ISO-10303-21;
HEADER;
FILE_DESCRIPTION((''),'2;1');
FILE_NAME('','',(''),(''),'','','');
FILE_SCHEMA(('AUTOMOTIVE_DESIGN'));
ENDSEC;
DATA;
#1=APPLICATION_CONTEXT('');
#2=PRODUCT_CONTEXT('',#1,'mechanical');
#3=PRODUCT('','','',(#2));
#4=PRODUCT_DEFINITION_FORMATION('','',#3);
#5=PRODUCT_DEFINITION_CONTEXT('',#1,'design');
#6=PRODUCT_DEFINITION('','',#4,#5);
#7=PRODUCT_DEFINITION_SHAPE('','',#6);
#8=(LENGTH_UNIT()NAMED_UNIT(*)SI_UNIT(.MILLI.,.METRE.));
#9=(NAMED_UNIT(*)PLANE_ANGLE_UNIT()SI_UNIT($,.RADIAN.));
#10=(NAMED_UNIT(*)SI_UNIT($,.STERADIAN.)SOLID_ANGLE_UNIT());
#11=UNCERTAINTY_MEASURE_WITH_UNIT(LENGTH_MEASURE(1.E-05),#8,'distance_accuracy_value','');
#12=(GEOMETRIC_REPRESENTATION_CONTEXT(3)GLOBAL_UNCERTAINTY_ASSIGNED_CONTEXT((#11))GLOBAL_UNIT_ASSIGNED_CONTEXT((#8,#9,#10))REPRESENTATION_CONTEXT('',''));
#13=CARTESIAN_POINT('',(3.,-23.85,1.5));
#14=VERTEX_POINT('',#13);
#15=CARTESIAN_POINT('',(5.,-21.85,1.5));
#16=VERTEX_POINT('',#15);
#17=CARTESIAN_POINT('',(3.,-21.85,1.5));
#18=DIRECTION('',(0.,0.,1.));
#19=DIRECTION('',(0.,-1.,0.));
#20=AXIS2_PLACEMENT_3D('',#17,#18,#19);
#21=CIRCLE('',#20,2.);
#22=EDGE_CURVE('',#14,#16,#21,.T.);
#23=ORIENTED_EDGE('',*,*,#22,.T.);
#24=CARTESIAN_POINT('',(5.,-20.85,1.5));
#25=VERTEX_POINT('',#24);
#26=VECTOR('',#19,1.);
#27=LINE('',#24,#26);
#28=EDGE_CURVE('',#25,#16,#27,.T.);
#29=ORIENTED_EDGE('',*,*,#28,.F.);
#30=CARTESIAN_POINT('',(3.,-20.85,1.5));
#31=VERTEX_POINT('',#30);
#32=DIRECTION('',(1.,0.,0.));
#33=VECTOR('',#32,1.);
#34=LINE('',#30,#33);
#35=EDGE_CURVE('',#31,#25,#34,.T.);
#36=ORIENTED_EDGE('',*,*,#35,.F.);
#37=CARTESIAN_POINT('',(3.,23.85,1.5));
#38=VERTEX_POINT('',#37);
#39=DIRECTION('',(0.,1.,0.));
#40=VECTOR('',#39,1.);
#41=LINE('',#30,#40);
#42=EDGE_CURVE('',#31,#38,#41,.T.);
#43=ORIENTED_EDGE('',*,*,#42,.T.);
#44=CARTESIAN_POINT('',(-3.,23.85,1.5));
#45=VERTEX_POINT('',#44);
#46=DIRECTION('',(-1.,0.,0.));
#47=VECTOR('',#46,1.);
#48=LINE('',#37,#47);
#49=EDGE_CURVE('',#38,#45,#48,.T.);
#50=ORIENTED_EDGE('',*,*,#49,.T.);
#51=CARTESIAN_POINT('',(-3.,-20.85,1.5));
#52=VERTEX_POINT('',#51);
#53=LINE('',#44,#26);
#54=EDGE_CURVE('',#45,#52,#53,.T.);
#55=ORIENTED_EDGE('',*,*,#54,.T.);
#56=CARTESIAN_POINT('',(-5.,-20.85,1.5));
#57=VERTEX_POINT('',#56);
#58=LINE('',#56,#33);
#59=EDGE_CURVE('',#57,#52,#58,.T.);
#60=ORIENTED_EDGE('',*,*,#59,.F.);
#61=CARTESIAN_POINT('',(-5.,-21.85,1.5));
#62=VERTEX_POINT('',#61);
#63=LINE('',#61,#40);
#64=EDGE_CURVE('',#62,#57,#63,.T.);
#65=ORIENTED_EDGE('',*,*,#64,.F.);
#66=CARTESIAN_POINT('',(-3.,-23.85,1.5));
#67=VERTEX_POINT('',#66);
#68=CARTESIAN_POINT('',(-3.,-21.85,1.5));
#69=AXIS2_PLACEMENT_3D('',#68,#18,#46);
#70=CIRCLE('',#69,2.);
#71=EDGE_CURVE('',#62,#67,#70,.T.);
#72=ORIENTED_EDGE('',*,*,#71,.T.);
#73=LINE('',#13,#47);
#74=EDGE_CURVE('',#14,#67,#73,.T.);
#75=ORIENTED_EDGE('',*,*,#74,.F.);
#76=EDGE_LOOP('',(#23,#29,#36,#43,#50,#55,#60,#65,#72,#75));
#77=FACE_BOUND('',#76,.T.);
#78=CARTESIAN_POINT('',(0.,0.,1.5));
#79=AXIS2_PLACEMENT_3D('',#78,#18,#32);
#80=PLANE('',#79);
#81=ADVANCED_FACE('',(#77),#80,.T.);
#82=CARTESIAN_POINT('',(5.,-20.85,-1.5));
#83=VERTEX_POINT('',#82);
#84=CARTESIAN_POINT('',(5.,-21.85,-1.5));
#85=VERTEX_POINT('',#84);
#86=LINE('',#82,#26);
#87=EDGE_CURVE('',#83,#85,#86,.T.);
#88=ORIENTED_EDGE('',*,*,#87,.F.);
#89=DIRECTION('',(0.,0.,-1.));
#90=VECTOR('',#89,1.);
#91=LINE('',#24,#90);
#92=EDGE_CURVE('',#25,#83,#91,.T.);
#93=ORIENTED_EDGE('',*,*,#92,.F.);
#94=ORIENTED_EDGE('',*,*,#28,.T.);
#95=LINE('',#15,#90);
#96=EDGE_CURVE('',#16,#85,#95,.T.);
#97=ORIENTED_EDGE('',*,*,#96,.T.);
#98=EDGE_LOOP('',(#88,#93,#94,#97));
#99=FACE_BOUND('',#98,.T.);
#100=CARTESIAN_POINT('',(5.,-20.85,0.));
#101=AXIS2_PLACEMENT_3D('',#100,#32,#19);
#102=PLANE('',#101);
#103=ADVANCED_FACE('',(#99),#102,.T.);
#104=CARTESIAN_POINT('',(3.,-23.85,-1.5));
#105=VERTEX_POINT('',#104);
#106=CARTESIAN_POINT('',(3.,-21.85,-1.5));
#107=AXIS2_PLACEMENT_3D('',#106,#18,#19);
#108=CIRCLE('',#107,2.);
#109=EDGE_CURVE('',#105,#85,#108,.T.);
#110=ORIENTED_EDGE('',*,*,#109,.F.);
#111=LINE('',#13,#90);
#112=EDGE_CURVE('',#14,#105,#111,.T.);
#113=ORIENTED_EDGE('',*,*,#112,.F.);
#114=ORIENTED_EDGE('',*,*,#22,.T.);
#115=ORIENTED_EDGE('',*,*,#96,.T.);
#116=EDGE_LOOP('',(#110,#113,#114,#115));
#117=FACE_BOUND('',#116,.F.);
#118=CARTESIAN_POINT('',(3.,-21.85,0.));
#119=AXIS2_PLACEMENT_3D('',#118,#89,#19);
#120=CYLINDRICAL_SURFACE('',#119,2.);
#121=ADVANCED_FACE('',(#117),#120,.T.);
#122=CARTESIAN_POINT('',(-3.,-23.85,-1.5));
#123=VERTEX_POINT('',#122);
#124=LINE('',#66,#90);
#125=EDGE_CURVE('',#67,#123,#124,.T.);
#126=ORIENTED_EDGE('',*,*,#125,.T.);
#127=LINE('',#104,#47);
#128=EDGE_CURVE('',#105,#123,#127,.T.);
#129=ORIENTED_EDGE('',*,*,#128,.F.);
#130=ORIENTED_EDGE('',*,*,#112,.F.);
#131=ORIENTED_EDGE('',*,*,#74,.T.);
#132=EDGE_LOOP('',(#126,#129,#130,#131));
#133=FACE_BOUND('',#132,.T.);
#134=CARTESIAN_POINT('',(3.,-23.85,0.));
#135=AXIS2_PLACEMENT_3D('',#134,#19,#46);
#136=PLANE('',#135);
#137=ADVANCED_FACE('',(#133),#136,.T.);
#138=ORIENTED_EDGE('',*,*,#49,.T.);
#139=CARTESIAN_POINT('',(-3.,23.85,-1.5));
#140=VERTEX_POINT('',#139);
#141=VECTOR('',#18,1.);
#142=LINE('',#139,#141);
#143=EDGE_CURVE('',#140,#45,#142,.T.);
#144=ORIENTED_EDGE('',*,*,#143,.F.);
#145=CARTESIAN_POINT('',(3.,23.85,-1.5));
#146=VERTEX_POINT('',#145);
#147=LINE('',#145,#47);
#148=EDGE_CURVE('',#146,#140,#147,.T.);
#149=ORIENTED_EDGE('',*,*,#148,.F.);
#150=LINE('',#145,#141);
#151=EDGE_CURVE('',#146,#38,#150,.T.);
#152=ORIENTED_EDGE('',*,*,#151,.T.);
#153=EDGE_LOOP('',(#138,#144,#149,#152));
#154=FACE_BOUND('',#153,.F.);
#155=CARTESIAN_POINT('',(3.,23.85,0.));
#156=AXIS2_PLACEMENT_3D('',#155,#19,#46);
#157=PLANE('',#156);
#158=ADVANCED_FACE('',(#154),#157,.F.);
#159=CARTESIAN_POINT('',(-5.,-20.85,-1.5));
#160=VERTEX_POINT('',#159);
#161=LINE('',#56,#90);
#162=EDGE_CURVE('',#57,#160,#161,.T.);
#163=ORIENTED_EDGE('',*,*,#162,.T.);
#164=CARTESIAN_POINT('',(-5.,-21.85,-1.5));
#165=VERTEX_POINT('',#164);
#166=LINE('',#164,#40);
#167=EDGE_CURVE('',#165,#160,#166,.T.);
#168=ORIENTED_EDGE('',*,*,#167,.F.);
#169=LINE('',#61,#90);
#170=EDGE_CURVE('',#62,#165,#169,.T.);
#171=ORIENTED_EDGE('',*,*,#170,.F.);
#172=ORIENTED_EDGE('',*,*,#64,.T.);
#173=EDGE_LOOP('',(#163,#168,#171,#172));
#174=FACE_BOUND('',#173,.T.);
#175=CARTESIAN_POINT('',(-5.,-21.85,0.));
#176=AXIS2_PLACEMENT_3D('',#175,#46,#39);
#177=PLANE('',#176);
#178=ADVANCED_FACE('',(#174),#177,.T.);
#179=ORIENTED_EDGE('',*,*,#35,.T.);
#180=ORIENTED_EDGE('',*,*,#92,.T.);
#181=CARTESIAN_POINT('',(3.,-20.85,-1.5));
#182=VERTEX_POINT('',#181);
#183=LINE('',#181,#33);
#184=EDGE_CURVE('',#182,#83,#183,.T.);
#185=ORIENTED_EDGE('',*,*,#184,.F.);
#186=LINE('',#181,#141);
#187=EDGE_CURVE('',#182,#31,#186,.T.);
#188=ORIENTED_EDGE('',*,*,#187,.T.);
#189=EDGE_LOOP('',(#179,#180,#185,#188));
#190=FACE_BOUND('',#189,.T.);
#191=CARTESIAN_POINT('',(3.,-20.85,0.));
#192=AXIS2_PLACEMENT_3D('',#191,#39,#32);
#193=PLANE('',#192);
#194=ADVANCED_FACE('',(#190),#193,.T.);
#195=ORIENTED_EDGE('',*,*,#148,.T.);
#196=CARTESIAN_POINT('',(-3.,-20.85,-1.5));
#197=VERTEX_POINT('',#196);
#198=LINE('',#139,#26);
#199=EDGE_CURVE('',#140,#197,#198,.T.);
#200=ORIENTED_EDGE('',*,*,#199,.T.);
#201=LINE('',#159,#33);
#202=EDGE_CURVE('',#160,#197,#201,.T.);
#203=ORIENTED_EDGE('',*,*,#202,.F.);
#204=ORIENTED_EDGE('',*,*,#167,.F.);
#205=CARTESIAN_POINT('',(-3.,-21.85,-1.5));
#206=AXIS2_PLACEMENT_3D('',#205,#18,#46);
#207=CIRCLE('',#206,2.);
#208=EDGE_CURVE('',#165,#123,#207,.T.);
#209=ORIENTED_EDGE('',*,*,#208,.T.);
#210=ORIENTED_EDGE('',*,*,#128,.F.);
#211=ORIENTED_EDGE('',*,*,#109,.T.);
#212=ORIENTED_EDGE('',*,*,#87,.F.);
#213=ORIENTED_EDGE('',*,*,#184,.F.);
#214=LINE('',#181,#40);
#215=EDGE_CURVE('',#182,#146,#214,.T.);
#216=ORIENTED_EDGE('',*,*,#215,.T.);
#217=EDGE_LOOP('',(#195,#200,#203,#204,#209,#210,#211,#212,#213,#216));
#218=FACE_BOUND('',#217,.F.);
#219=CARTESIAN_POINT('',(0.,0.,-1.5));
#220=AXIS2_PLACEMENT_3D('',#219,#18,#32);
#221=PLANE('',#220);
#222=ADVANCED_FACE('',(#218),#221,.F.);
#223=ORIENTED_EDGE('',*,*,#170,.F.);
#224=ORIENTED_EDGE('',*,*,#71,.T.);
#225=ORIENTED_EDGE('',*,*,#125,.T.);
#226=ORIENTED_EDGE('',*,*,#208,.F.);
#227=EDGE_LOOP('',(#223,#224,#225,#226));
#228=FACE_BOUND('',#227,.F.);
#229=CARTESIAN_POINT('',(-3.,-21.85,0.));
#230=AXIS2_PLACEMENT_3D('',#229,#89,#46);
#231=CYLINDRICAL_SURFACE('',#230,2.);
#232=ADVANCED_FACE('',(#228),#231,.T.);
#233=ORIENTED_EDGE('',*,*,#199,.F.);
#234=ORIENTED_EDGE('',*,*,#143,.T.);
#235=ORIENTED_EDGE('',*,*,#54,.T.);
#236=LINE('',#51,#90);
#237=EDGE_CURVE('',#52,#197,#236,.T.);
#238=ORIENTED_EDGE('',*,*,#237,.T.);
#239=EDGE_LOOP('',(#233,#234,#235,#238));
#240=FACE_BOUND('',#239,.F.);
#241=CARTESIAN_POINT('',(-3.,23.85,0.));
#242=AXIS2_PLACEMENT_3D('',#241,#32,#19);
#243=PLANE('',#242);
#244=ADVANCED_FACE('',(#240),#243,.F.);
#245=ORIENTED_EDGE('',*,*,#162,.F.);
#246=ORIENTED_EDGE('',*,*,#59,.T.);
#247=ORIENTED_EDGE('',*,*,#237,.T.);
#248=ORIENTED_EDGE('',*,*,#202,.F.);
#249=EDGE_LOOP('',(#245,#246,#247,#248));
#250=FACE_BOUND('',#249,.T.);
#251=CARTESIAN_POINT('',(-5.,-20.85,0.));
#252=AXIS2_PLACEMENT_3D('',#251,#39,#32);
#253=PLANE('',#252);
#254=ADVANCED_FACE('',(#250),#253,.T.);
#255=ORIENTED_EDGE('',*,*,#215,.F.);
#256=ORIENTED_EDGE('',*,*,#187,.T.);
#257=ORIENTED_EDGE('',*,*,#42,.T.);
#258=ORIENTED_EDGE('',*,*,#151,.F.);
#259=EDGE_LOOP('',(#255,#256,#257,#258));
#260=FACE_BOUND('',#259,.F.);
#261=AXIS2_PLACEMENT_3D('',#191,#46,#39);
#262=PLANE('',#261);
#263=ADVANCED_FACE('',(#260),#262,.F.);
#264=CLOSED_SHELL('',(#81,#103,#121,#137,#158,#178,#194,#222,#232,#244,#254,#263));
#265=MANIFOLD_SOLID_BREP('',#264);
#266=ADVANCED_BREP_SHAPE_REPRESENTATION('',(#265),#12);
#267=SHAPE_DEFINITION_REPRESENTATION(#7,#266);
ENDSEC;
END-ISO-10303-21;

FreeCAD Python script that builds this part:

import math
import FreeCAD as App
import Part
import Sketcher
Q = App.Units.Quantity

doc = App.newDocument("Part")
body = doc.addObject("PartDesign::Body", "Body")

sketch1 = body.newObject("Sketcher::SketchObject", "Sketch")
sketch1.AttachmentSupport = (doc.getObject("XY_Plane"), [""])
sketch1.MapMode = "FlatFace"
sketch1.addGeometry([
    Part.LineSegment(App.Vector(5, -20.9, 0), App.Vector(3, -20.9, 0)),
    Part.LineSegment(App.Vector(3, -20.9, 0), App.Vector(3, 23.9, 0)),
    Part.LineSegment(App.Vector(3, 23.9, 0), App.Vector(-3, 23.9, 0)),
    Part.LineSegment(App.Vector(-3, 23.9, 0), App.Vector(-3, -20.9, 0)),
    Part.LineSegment(App.Vector(-3, -20.9, 0), App.Vector(-5, -20.9, 0)),
    Part.LineSegment(App.Vector(-5, -20.9, 0), App.Vector(-5, -21.9, 0)),
    Part.ArcOfCircle(Part.Circle(App.Vector(-3, -21.9, 0), App.Vector(0, 0, 1), 2), math.radians(180), math.radians(270)),
    Part.LineSegment(App.Vector(-3, -23.9, 0), App.Vector(3, -23.9, 0)),
    Part.ArcOfCircle(Part.Circle(App.Vector(3, -21.9, 0), App.Vector(0, 0, 1), 2), math.radians(-90), math.radians(0)),
    Part.LineSegment(App.Vector(5, -21.9, 0), App.Vector(5, -20.9, 0)),
], False)
sketch1.addConstraint([
    Sketcher.Constraint("Coincident", 0, 2, 1, 1),
    Sketcher.Constraint("Coincident", 1, 2, 2, 1),
    Sketcher.Constraint("Coincident", 2, 2, 3, 1),
    Sketcher.Constraint("Coincident", 3, 2, 4, 1),
    Sketcher.Constraint("Coincident", 4, 2, 5, 1),
    Sketcher.Constraint("Tangent", 5, 2, 6, 1),
    Sketcher.Constraint("Tangent", 6, 2, 7, 1),
    Sketcher.Constraint("Tangent", 7, 2, 8, 1),
    Sketcher.Constraint("Tangent", 8, 2, 9, 1),
    Sketcher.Constraint("Coincident", 9, 2, 0, 1),
    Sketcher.Constraint("Horizontal", 0),
    Sketcher.Constraint("Vertical", 1),
    Sketcher.Constraint("Horizontal", 2),
    Sketcher.Constraint("Vertical", 3),
    Sketcher.Constraint("Horizontal", 4),
    Sketcher.Constraint("Vertical", 5),
    Sketcher.Constraint("Horizontal", 7),
    Sketcher.Constraint("Vertical", 9),
    Sketcher.Constraint("Equal", 6, 8),
    Sketcher.Constraint("Symmetric", 1, 2, 6, 2, -1, 1),
    Sketcher.Constraint("Symmetric", 0, 2, 3, 2, -2),
    Sketcher.Constraint("Vertical", 8, 3, 0, 2),
    Sketcher.Constraint("Radius", 6, Q("2 mm")),
    Sketcher.Constraint("DistanceX", 2, 2, 2, 1, Q("6 mm")),
    Sketcher.Constraint("DistanceY", 6, 2, 3, 2, Q("3 mm")),
    Sketcher.Constraint("DistanceY", 1, 1, 1, 2, Q("44.7 mm")),
])
pad1 = body.newObject("PartDesign::Pad", "Pad")
pad1.Profile = sketch1
pad1.Length = 3
pad1.Midplane = True

doc.recompute()
